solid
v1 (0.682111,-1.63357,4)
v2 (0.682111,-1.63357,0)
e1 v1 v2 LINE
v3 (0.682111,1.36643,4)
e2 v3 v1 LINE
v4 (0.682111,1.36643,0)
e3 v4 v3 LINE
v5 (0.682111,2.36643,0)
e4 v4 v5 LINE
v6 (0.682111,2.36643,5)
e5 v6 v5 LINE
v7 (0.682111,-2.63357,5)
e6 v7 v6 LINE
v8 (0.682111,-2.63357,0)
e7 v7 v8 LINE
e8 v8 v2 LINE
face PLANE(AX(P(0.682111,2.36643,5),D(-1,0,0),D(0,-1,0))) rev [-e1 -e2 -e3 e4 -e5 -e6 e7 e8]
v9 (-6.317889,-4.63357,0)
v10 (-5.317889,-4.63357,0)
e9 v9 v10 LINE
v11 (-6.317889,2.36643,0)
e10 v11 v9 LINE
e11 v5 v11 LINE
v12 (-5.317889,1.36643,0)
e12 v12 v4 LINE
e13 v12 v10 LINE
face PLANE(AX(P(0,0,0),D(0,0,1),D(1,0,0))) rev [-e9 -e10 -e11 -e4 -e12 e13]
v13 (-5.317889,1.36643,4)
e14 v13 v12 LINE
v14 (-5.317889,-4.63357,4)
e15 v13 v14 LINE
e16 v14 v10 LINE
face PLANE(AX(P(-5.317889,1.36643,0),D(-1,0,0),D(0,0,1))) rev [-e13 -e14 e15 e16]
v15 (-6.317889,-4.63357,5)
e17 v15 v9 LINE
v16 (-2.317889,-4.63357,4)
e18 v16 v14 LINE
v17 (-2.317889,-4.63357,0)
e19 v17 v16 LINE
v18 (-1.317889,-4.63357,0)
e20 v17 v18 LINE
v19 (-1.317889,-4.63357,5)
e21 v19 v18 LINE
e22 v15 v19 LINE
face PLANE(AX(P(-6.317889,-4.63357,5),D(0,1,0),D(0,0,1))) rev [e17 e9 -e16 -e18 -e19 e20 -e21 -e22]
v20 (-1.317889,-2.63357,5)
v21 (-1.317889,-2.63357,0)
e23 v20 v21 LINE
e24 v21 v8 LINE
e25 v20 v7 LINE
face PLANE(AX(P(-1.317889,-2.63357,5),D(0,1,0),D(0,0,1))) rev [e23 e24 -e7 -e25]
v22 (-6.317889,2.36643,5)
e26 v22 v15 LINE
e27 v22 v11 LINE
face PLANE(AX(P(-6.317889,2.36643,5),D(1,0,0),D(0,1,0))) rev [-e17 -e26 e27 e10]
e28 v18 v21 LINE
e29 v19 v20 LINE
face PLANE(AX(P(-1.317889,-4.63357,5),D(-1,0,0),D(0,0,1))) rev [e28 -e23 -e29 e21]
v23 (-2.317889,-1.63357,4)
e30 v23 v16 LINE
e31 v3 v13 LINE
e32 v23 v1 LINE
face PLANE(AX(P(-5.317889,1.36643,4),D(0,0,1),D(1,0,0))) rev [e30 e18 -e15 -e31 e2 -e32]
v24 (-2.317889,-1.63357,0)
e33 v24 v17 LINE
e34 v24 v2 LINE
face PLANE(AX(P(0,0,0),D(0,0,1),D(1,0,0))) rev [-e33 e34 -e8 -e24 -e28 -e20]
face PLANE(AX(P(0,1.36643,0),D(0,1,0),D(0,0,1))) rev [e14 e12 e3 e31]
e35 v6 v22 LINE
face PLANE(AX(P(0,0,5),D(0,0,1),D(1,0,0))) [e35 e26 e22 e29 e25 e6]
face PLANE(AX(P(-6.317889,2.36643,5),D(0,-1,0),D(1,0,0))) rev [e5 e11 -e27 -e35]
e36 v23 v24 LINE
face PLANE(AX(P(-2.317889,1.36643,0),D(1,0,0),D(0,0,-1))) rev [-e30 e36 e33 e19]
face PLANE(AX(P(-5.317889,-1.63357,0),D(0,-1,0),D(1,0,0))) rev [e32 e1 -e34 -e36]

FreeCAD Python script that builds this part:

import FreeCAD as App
import Part
import Sketcher

V = App.Vector

doc = App.newDocument("Part")
body = doc.addObject("PartDesign::Body", "Body")

# Sketch on XY plane
sketch1 = body.newObject("Sketcher::SketchObject", "Sketch")
sketch1.AttachmentSupport = (doc.getObject("XY_Plane"), [""])
sketch1.MapMode = "FlatFace"
sketch1.addGeometry([
    Part.LineSegment(V(-1.3, -4.6, 0), V(-1.3, -2.6, 0)),  # 0
    Part.LineSegment(V(-1.3, -2.6, 0), V(0.7, -2.6, 0)),  # 1
    Part.LineSegment(V(0.7, -2.6, 0), V(0.7, 2.4, 0)),  # 2
    Part.LineSegment(V(0.7, 2.4, 0), V(-6.3, 2.4, 0)),  # 3
    Part.LineSegment(V(-6.3, 2.4, 0), V(-6.3, -4.6, 0)),  # 4
    Part.LineSegment(V(-6.3, -4.6, 0), V(-1.3, -4.6, 0)),  # 5
], False)
sketch1.addConstraint([
    Sketcher.Constraint("Coincident", 0, 2, 1, 1),
    Sketcher.Constraint("Coincident", 1, 2, 2, 1),
    Sketcher.Constraint("Coincident", 2, 2, 3, 1),
    Sketcher.Constraint("Coincident", 3, 2, 4, 1),
    Sketcher.Constraint("Coincident", 4, 2, 5, 1),
    Sketcher.Constraint("Coincident", 5, 2, 0, 1),
    Sketcher.Constraint("Vertical", 0),
    Sketcher.Constraint("Horizontal", 1),
    Sketcher.Constraint("Vertical", 2),
    Sketcher.Constraint("Horizontal", 3),
    Sketcher.Constraint("Vertical", 4),
    Sketcher.Constraint("Horizontal", 5),
    Sketcher.Constraint("Equal", 1, 0),
    Sketcher.Constraint("Equal", 5, 2),
    Sketcher.Constraint("DistanceX", 1, 1, 1, 2, 2.0),
    Sketcher.Constraint("DistanceX", 3, 2, 3, 1, 7.0),
    Sketcher.Constraint("DistanceX", 0, 2, -1, 1, 1.317889),
    Sketcher.Constraint("DistanceY", 0, 2, -1, 1, 2.63357),
])
pad1 = body.newObject("PartDesign::Pad", "Pad")
pad1.Profile = sketch1
pad1.Length = 5

# Sketch on XZ plane
sketch2 = body.newObject("Sketcher::SketchObject", "Sketch001")
sketch2.AttachmentSupport = (doc.getObject("XZ_Plane"), [""])
sketch2.MapMode = "FlatFace"
sketch2.AttachmentOffset = App.Placement(V(0, 0, 4.63357), App.Rotation())
sketch2.addGeometry([
    Part.LineSegment(V(-5.3, 4, 0), V(-5.3, 0, 0)),
    Part.LineSegment(V(-5.3, 0, 0), V(-2.3, 0, 0)),
    Part.LineSegment(V(-2.3, 0, 0), V(-2.3, 4, 0)),
    Part.LineSegment(V(-2.3, 4, 0), V(-5.3, 4, 0)),
], False)
sketch2.addConstraint([
    Sketcher.Constraint("Coincident", 0, 2, 1, 1),
    Sketcher.Constraint("Coincident", 1, 2, 2, 1),
    Sketcher.Constraint("Coincident", 2, 2, 3, 1),
    Sketcher.Constraint("Coincident", 3, 2, 0, 1),
    Sketcher.Constraint("Vertical", 0),
    Sketcher.Constraint("Horizontal", 1),
    Sketcher.Constraint("Vertical", 2),
    Sketcher.Constraint("Horizontal", 3),
    Sketcher.Constraint("PointOnObject", 0, 2, -1),
    Sketcher.Constraint("DistanceX", 1, 1, 1, 2, 3.0),
    Sketcher.Constraint("DistanceY", 0, 2, 0, 1, 4.0),
    Sketcher.Constraint("DistanceX", 0, 2, -1, 1, 5.317889),
])
pocket1 = body.newObject("PartDesign::Pocket", "Pocket")
pocket1.Profile = sketch2
pocket1.Length = 6

# Sketch on YZ plane
sketch3 = body.newObject("Sketcher::SketchObject", "Sketch002")
sketch3.AttachmentSupport = (doc.getObject("YZ_Plane"), [""])
sketch3.MapMode = "FlatFace"
sketch3.AttachmentOffset = App.Placement(V(0, 0, 0.682111), App.Rotation())
sketch3.addGeometry([
    Part.LineSegment(V(1.4, 4, 0), V(-1.6, 4, 0)),
    Part.LineSegment(V(-1.6, 4, 0), V(-1.6, 0, 0)),
    Part.LineSegment(V(-1.6, 0, 0), V(1.4, 0, 0)),
    Part.LineSegment(V(1.4, 0, 0), V(1.4, 4, 0)),
], False)
sketch3.addConstraint([
    Sketcher.Constraint("Coincident", 0, 2, 1, 1),
    Sketcher.Constraint("Coincident", 1, 2, 2, 1),
    Sketcher.Constraint("Coincident", 2, 2, 3, 1),
    Sketcher.Constraint("Coincident", 3, 2, 0, 1),
    Sketcher.Constraint("Horizontal", 0),
    Sketcher.Constraint("Vertical", 1),
    Sketcher.Constraint("Horizontal", 2),
    Sketcher.Constraint("Vertical", 3),
    Sketcher.Constraint("PointOnObject", 1, 2, -1),
    Sketcher.Constraint("DistanceX", 0, 2, 0, 1, 3.0),
    Sketcher.Constraint("DistanceY", 1, 2, 1, 1, 4.0),
    Sketcher.Constraint("DistanceX", 0, 2, -1, 1, 1.63357),
])
pocket2 = body.newObject("PartDesign::Pocket", "Pocket001")
pocket2.Profile = sketch3
pocket2.Length = 6

doc.recompute()
